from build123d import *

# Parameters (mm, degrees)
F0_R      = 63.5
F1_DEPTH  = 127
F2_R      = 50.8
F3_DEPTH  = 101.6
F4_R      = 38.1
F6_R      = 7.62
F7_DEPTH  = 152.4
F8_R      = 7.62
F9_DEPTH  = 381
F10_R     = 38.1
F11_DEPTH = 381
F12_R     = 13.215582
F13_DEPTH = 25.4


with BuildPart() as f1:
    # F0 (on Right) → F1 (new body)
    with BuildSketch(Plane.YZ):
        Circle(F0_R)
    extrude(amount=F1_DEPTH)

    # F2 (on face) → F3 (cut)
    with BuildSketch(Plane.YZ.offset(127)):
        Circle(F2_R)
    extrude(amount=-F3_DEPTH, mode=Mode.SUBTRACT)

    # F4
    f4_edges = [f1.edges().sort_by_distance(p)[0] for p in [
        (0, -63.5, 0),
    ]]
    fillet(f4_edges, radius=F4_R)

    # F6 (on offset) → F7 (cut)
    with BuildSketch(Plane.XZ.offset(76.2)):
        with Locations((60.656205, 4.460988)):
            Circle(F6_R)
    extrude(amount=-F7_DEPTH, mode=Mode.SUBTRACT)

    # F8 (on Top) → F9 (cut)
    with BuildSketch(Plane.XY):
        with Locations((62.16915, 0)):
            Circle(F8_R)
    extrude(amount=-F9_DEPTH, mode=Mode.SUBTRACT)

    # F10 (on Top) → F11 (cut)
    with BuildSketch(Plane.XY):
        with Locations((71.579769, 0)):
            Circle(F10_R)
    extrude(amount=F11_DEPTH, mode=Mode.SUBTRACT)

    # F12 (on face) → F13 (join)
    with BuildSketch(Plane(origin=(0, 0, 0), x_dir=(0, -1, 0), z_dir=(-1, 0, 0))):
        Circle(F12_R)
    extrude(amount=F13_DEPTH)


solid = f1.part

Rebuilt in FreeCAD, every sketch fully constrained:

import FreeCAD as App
import Part
import Sketcher
Q = App.Units.Quantity


def edges_at(feature, points):
    """Names of the edges that pass closest to the given points."""
    edges = feature.Shape.Edges
    near = lambda p: min(range(len(edges)), key=lambda i: edges[i].distToShape(Part.Vertex(*p))[0])
    return sorted({f"Edge{near(p) + 1}" for p in points})

doc = App.newDocument("Part")
body = doc.addObject("PartDesign::Body", "Body")

# Sketch on YZ plane
sketch1 = doc.addObject("Sketcher::SketchObject", "Sketch")
body.addObject(sketch1)
sketch1.AttachmentSupport = (doc.YZ_Plane, [""])
sketch1.MapMode = "FlatFace"
sketch1.addGeometry(Part.Circle(App.Vector(0, 0, 0), App.Vector(0, 0, 1), 64), False)
sketch1.addConstraint(Sketcher.Constraint("Coincident", 0, 3, -1, 1))
sketch1.addConstraint(Sketcher.Constraint("Diameter", 0, Q("5 in")))
pad1 = doc.addObject("PartDesign::Pad", "Pad")
body.addObject(pad1)
pad1.Profile = sketch1
pad1.Length = Q("5 in")

# Sketch on YZ plane
sketch2 = doc.addObject("Sketcher::SketchObject", "Sketch001")
body.addObject(sketch2)
sketch2.AttachmentSupport = (doc.YZ_Plane, [""])
sketch2.MapMode = "FlatFace"
sketch2.AttachmentOffset = App.Placement(App.Vector(0, 0, 5 * 25.4), App.Rotation())
sketch2.addGeometry(Part.Circle(App.Vector(0, 0, 0), App.Vector(0, 0, 1), 51), False)
sketch2.addConstraint(Sketcher.Constraint("Coincident", 0, 3, -1, 1))
sketch2.addConstraint(Sketcher.Constraint("Diameter", 0, Q("4 in")))
pocket1 = doc.addObject("PartDesign::Pocket", "Pocket")
body.addObject(pocket1)
pocket1.Profile = sketch2
pocket1.Length = Q("4 in")
doc.recompute()

fillet = doc.addObject("PartDesign::Fillet", "Fillet")
body.addObject(fillet)
fillet.Base = (pocket1, edges_at(pocket1, [(0, -63.5, 0)]))
fillet.Radius = Q("1.5 in")

# Sketch on XZ plane
sketch3 = doc.addObject("Sketcher::SketchObject", "Sketch002")
body.addObject(sketch3)
sketch3.AttachmentSupport = (doc.XZ_Plane, [""])
sketch3.MapMode = "FlatFace"
sketch3.AttachmentOffset = App.Placement(App.Vector(0, 0, 3 * 25.4), App.Rotation())
sketch3.addGeometry(Part.Circle(App.Vector(61, 4, 0), App.Vector(0, 0, 1), 8), False)
sketch3.addConstraint(Sketcher.Constraint("Diameter", 0, Q("0.6 in")))
sketch3.addConstraint(Sketcher.Constraint("DistanceY", -1, 1, 0, 3, Q("4.460988 mm")))
sketch3.addConstraint(Sketcher.Constraint("DistanceX", -1, 1, 0, 3, Q("60.656205 mm")))
pocket2 = doc.addObject("PartDesign::Pocket", "Pocket001")
body.addObject(pocket2)
pocket2.Profile = sketch3
pocket2.Length = Q("6 in")

# Sketch on XY plane
sketch4 = doc.addObject("Sketcher::SketchObject", "Sketch003")
body.addObject(sketch4)
sketch4.AttachmentSupport = (doc.XY_Plane, [""])
sketch4.MapMode = "FlatFace"
sketch4.addGeometry(Part.Circle(App.Vector(62, 0, 0), App.Vector(0, 0, 1), 8), False)
sketch4.addConstraint(Sketcher.Constraint("PointOnObject", 0, 3, -1))
sketch4.addConstraint(Sketcher.Constraint("Diameter", 0, Q("0.6 in")))
sketch4.addConstraint(Sketcher.Constraint("DistanceX", -1, 1, 0, 3, Q("62.16915 mm")))
pocket3 = doc.addObject("PartDesign::Pocket", "Pocket002")
body.addObject(pocket3)
pocket3.Profile = sketch4
pocket3.Length = Q("15 in")

# Sketch on XY plane
sketch5 = doc.addObject("Sketcher::SketchObject", "Sketch004")
body.addObject(sketch5)
sketch5.AttachmentSupport = (doc.XY_Plane, [""])
sketch5.MapMode = "FlatFace"
sketch5.addGeometry(Part.Circle(App.Vector(72, 0, 0), App.Vector(0, 0, 1), 38), False)
sketch5.addConstraint(Sketcher.Constraint("PointOnObject", 0, 3, -1))
sketch5.addConstraint(Sketcher.Constraint("Diameter", 0, Q("3 in")))
sketch5.addConstraint(Sketcher.Constraint("DistanceX", -1, 1, 0, 3, Q("71.579769 mm")))
pocket4 = doc.addObject("PartDesign::Pocket", "Pocket003")
body.addObject(pocket4)
pocket4.Profile = sketch5
pocket4.Length = Q("15 in")
pocket4.Reversed = True

# Sketch on YZ plane
sketch6 = doc.addObject("Sketcher::SketchObject", "Sketch005")
body.addObject(sketch6)
sketch6.AttachmentSupport = (doc.YZ_Plane, [""])
sketch6.MapMode = "FlatFace"
sketch6.addGeometry(Part.Circle(App.Vector(0, 0, 0), App.Vector(0, 0, 1), 13), False)
sketch6.addConstraint(Sketcher.Constraint("Coincident", 0, 3, -1, 1))
sketch6.addConstraint(Sketcher.Constraint("Diameter", 0, Q("26.431164 mm")))
pad2 = doc.addObject("PartDesign::Pad", "Pad001")
body.addObject(pad2)
pad2.Profile = sketch6
pad2.Length = Q("1 in")
pad2.Reversed = True

doc.recompute()
